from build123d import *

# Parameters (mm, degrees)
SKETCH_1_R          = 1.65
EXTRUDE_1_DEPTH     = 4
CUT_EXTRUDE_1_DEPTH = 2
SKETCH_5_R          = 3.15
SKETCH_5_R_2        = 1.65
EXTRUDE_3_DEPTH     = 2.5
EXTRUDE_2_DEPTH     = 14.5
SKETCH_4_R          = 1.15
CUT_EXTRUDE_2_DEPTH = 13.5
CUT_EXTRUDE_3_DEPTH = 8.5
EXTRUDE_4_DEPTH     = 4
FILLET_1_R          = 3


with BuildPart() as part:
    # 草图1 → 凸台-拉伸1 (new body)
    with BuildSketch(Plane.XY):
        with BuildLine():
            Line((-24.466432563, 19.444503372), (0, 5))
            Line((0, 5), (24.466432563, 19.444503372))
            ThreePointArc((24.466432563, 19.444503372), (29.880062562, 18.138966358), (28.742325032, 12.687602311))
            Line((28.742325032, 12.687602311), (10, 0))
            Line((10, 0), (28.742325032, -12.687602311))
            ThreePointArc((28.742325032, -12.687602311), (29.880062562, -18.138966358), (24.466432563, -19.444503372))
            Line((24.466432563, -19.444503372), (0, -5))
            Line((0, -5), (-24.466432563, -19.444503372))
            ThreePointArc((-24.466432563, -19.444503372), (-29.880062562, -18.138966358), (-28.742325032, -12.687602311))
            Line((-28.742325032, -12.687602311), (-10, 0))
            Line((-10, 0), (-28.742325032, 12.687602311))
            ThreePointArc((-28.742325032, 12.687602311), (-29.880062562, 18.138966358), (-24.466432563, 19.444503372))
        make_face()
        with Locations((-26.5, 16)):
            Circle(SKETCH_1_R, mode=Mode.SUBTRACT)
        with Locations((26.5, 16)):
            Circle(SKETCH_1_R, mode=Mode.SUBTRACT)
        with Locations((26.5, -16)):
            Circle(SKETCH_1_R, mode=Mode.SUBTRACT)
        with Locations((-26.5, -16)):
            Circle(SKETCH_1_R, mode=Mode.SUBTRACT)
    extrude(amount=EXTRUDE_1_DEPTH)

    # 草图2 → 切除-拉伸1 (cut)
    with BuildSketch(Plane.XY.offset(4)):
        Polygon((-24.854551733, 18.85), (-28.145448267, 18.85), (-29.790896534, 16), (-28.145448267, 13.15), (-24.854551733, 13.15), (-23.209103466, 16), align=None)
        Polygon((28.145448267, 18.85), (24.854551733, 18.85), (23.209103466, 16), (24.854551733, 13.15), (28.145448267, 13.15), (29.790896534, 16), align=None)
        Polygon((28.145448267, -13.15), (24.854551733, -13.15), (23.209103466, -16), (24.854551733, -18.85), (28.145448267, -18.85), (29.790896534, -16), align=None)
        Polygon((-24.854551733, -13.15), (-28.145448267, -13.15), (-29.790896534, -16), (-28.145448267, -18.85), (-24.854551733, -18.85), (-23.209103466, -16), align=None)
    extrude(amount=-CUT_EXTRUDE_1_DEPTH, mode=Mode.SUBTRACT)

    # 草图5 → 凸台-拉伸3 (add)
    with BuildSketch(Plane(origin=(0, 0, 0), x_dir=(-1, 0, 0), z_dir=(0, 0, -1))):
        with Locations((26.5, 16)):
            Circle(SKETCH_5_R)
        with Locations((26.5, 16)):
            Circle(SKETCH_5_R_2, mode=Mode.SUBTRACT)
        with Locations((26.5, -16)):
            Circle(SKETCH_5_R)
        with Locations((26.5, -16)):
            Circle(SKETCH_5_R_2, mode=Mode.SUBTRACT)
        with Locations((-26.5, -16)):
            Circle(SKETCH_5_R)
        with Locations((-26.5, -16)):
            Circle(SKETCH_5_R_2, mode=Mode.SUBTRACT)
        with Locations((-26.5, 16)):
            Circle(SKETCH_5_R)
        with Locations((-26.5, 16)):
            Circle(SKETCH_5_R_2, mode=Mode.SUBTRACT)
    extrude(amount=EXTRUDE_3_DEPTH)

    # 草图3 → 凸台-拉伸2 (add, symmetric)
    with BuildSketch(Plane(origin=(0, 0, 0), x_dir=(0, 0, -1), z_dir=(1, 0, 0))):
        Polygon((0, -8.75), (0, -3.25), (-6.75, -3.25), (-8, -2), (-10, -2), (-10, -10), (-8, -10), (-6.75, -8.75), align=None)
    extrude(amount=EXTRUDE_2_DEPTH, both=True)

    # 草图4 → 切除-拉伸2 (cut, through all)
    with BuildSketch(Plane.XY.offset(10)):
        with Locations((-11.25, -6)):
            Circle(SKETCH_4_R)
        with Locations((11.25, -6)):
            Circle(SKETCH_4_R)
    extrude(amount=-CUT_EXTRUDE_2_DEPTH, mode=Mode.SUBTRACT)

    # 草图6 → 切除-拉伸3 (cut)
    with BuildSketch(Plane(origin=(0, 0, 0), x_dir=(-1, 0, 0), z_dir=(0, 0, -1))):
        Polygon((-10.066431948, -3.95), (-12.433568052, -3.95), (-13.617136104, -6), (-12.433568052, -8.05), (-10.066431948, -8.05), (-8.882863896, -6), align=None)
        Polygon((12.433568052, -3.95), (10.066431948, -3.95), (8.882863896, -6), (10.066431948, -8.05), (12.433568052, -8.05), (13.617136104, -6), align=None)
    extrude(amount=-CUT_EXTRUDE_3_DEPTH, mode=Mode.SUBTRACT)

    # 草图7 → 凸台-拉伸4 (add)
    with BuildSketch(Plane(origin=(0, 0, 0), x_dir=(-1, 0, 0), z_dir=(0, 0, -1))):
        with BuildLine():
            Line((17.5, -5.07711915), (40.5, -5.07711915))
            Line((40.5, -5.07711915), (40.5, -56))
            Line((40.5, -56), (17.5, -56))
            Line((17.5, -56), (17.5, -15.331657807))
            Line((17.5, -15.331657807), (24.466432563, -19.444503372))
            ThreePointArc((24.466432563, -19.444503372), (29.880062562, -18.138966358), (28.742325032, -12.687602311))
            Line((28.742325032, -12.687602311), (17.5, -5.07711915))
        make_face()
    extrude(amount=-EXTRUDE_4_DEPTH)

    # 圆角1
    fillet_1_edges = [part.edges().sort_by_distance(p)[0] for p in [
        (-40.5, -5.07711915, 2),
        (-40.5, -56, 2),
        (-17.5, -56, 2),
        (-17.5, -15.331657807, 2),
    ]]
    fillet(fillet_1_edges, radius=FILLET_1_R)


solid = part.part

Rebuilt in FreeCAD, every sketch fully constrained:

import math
import FreeCAD as App
import Part
import Sketcher
Q = App.Units.Quantity


def edges_at(feature, points):
    """Names of the edges that pass closest to the given points."""
    edges = feature.Shape.Edges
    near = lambda p: min(range(len(edges)), key=lambda i: edges[i].distToShape(Part.Vertex(*p))[0])
    return sorted({f"Edge{near(p) + 1}" for p in points})

doc = App.newDocument("Part")
params = doc.addObject("Spreadsheet::Sheet", "Params")
for row, (alias, value) in enumerate([
    ("sketch1_radius", "4 mm"),
    ("sketch1_diameter", "3.3 mm"),
    ("pad1_length", "4 mm"),
    ("pocket1_length", "2 mm"),
    ("sketch3_diameter", "6.3 mm"),
    ("sketch3_diameter2", "3.3 mm"),
    ("pad2_length", "2.5 mm"),
    ("sketch4_width", "8 mm"),
    ("sketch4_height", "2 mm"),
    ("sketch4_width2", "5.5 mm"),
    ("pad3_length", "29 mm"),
    ("sketch5_diameter", "2.3 mm"),
    ("pocket3_length", "8.5 mm"),
    ("sketch7_radius", "4 mm"),
    ("sketch7_width", "23 mm"),
    ("pad4_length", "4 mm"),
    ("fillet_radius", "3 mm"),
], start=1):
    params.set(f"A{row}", alias)
    params.set(f"B{row}", "=" + value)
    params.setAlias(f"B{row}", alias)

body = doc.addObject("PartDesign::Body", "Body")

sketch1 = body.newObject("Sketcher::SketchObject", "Sketch")
sketch1.AttachmentSupport = (doc.getObject("XY_Plane"), [""])
sketch1.MapMode = "FlatFace"
sketch1.addGeometry([
    Part.LineSegment(App.Vector(0, 5, 0), App.Vector(-24.466433, 19.444503, 0)),
    Part.ArcOfCircle(Part.Circle(App.Vector(-26.5, 16, 0), App.Vector(0, 0, 1), 4), math.radians(59.443228), math.radians(235.903995)),
    Part.LineSegment(App.Vector(-28.742325, 12.687602, 0), App.Vector(-10, 0, 0)),
    Part.LineSegment(App.Vector(-10, 0, 0), App.Vector(-28.742325, -12.687602, 0)),
    Part.ArcOfCircle(Part.Circle(App.Vector(-26.5, -16, 0), App.Vector(0, 0, 1), 4), math.radians(124.096005), math.radians(300.556772)),
    Part.LineSegment(App.Vector(-24.466433, -19.444503, 0), App.Vector(0, -5, 0)),
    Part.LineSegment(App.Vector(0, -5, 0), App.Vector(24.466433, -19.444503, 0)),
    Part.ArcOfCircle(Part.Circle(App.Vector(26.5, -16, 0), App.Vector(0, 0, 1), 4), math.radians(-120.556772), math.radians(55.903995)),
    Part.LineSegment(App.Vector(28.742325, -12.687602, 0), App.Vector(10, 0, 0)),
    Part.LineSegment(App.Vector(10, 0, 0), App.Vector(28.742325, 12.687602, 0)),
    Part.ArcOfCircle(Part.Circle(App.Vector(26.5, 16, 0), App.Vector(0, 0, 1), 4), math.radians(-55.903995), math.radians(120.556772)),
    Part.LineSegment(App.Vector(24.466433, 19.444503, 0), App.Vector(0, 5, 0)),
    Part.Circle(App.Vector(26.5, -16, 0), App.Vector(0, 0, 1), 1.65),
    Part.Circle(App.Vector(-26.5, -16, 0), App.Vector(0, 0, 1), 1.65),
    Part.Circle(App.Vector(26.5, 16, 0), App.Vector(0, 0, 1), 1.65),
    Part.Circle(App.Vector(-26.5, 16, 0), App.Vector(0, 0, 1), 1.65),
], False)
sketch1.addConstraint([
    Sketcher.Constraint("Tangent", 0, 2, 1, 1),
    Sketcher.Constraint("Tangent", 1, 2, 2, 1),
    Sketcher.Constraint("Coincident", 2, 2, 3, 1),
    Sketcher.Constraint("Tangent", 3, 2, 4, 1),
    Sketcher.Constraint("Tangent", 4, 2, 5, 1),
    Sketcher.Constraint("Coincident", 5, 2, 6, 1),
    Sketcher.Constraint("Tangent", 6, 2, 7, 1),
    Sketcher.Constraint("Tangent", 7, 2, 8, 1),
    Sketcher.Constraint("Coincident", 8, 2, 9, 1),
    Sketcher.Constraint("Tangent", 9, 2, 10, 1),
    Sketcher.Constraint("Tangent", 10, 2, 11, 1),
    Sketcher.Constraint("Coincident", 11, 2, 0, 1),
    Sketcher.Constraint("Coincident", 12, 3, 7, 3),
    Sketcher.Constraint("Coincident", 13, 3, 4, 3),
    Sketcher.Constraint("Coincident", 14, 3, 10, 3),
    Sketcher.Constraint("Coincident", 15, 3, 1, 3),
    Sketcher.Constraint("Equal", 1, 4),
    Sketcher.Constraint("Equal", 4, 7),
    Sketcher.Constraint("Equal", 7, 10),
    Sketcher.Constraint("Equal", 12, 13),
    Sketcher.Constraint("Equal", 13, 14),
    Sketcher.Constraint("Equal", 14, 15),
    Sketcher.Constraint("Symmetric", 1, 3, 7, 3, -1, 1),
    Sketcher.Constraint("Symmetric", 4, 3, 10, 3, -1, 1),
    Sketcher.Constraint("Symmetric", 2, 2, 8, 2, -1, 1),
    Sketcher.Constraint("Symmetric", 5, 2, 11, 2, -1, 1),
    Sketcher.Constraint("Symmetric", 4, 3, 7, 3, -2),
    Sketcher.Constraint("PointOnObject", 2, 2, -1),
    Sketcher.Constraint("PointOnObject", 5, 2, -2),
    Sketcher.Constraint("Radius", 1, 4.0),
    Sketcher.Constraint("Diameter", 12, 3.3),
    Sketcher.Constraint("DistanceY", -1, 1, 1, 3, 16.0),
    Sketcher.Constraint("DistanceX", 2, 2, -1, 1, 10.0),
    Sketcher.Constraint("DistanceY", 5, 2, -1, 1, 5.0),
    Sketcher.Constraint("DistanceX", 4, 3, 7, 3, 53.0),
])
sketch1.setExpression("Constraints[29]", "Params.sketch1_radius")
sketch1.setExpression("Constraints[30]", "Params.sketch1_diameter")
pad1 = body.newObject("PartDesign::Pad", "Pad")
pad1.Profile = sketch1
pad1.setExpression("Length", "Params.pad1_length")

sketch2 = body.newObject("Sketcher::SketchObject", "Sketch001")
sketch2.AttachmentSupport = (doc.getObject("XY_Plane"), [""])
sketch2.MapMode = "FlatFace"
sketch2.AttachmentOffset = App.Placement(App.Vector(0, 0, 4), App.Rotation())
sketch2.addGeometry([
    Part.LineSegment(App.Vector(-24.854552, 18.85, 0), App.Vector(-28.145448, 18.85, 0)),
    Part.LineSegment(App.Vector(-28.145448, 18.85, 0), App.Vector(-29.790897, 16, 0)),
    Part.LineSegment(App.Vector(-29.790897, 16, 0), App.Vector(-28.145448, 13.15, 0)),
    Part.LineSegment(App.Vector(-28.145448, 13.15, 0), App.Vector(-24.854552, 13.15, 0)),
    Part.LineSegment(App.Vector(-24.854552, 13.15, 0), App.Vector(-23.209103, 16, 0)),
    Part.LineSegment(App.Vector(-23.209103, 16, 0), App.Vector(-24.854552, 18.85, 0)),
    Part.LineSegment(App.Vector(28.145448, 18.85, 0), App.Vector(24.854552, 18.85, 0)),
    Part.LineSegment(App.Vector(24.854552, 18.85, 0), App.Vector(23.209103, 16, 0)),
    Part.LineSegment(App.Vector(23.209103, 16, 0), App.Vector(24.854552, 13.15, 0)),
    Part.LineSegment(App.Vector(24.854552, 13.15, 0), App.Vector(28.145448, 13.15, 0)),
    Part.LineSegment(App.Vector(28.145448, 13.15, 0), App.Vector(29.790897, 16, 0)),
    Part.LineSegment(App.Vector(29.790897, 16, 0), App.Vector(28.145448, 18.85, 0)),
    Part.LineSegment(App.Vector(28.145448, -13.15, 0), App.Vector(24.854552, -13.15, 0)),
    Part.LineSegment(App.Vector(24.854552, -13.15, 0), App.Vector(23.209103, -16, 0)),
    Part.LineSegment(App.Vector(23.209103, -16, 0), App.Vector(24.854552, -18.85, 0)),
    Part.LineSegment(App.Vector(24.854552, -18.85, 0), App.Vector(28.145448, -18.85, 0)),
    Part.LineSegment(App.Vector(28.145448, -18.85, 0), App.Vector(29.790897, -16, 0)),
    Part.LineSegment(App.Vector(29.790897, -16, 0), App.Vector(28.145448, -13.15, 0)),
    Part.LineSegment(App.Vector(-24.854552, -13.15, 0), App.Vector(-28.145448, -13.15, 0)),
    Part.LineSegment(App.Vector(-28.145448, -13.15, 0), App.Vector(-29.790897, -16, 0)),
    Part.LineSegment(App.Vector(-29.790897, -16, 0), App.Vector(-28.145448, -18.85, 0)),
    Part.LineSegment(App.Vector(-28.145448, -18.85, 0), App.Vector(-24.854552, -18.85, 0)),
    Part.LineSegment(App.Vector(-24.854552, -18.85, 0), App.Vector(-23.209103, -16, 0)),
    Part.LineSegment(App.Vector(-23.209103, -16, 0), App.Vector(-24.854552, -13.15, 0)),
], False)
sketch2.addConstraint([
    Sketcher.Constraint("Coincident", 0, 2, 1, 1),
    Sketcher.Constraint("Coincident", 1, 2, 2, 1),
    Sketcher.Constraint("Coincident", 2, 2, 3, 1),
    Sketcher.Constraint("Coincident", 3, 2, 4, 1),
    Sketcher.Constraint("Coincident", 4, 2, 5, 1),
    Sketcher.Constraint("Coincident", 5, 2, 0, 1),
    Sketcher.Constraint("Coincident", 6, 2, 7, 1),
    Sketcher.Constraint("Coincident", 7, 2, 8, 1),
    Sketcher.Constraint("Coincident", 8, 2, 9, 1),
    Sketcher.Constraint("Coincident", 9, 2, 10, 1),
    Sketcher.Constraint("Coincident", 10, 2, 11, 1),
    Sketcher.Constraint("Coincident", 11, 2, 6, 1),
    Sketcher.Constraint("Coincident", 12, 2, 13, 1),
    Sketcher.Constraint("Coincident", 13, 2, 14, 1),
    Sketcher.Constraint("Coincident", 14, 2, 15, 1),
    Sketcher.Constraint("Coincident", 15, 2, 16, 1),
    Sketcher.Constraint("Coincident", 16, 2, 17, 1),
    Sketcher.Constraint("Coincident", 17, 2, 12, 1),
    Sketcher.Constraint("Coincident", 18, 2, 19, 1),
    Sketcher.Constraint("Coincident", 19, 2, 20, 1),
    Sketcher.Constraint("Coincident", 20, 2, 21, 1),
    Sketcher.Constraint("Coincident", 21, 2, 22, 1),
    Sketcher.Constraint("Coincident", 22, 2, 23, 1),
    Sketcher.Constraint("Coincident", 23, 2, 18, 1),
    Sketcher.Constraint("Horizontal", 0),
    Sketcher.Constraint("Horizontal", 3),
    Sketcher.Constraint("Horizontal", 6),
    Sketcher.Constraint("Horizontal", 9),
    Sketcher.Constraint("Horizontal", 12),
    Sketcher.Constraint("Horizontal", 15),
    Sketcher.Constraint("Horizontal", 18),
    Sketcher.Constraint("Horizontal", 21),
    Sketcher.Constraint("Symmetric", 3, 2, 12, 2, -1, 1),
    Sketcher.Constraint("Symmetric", 4, 2, 13, 2, -1, 1),
    Sketcher.Constraint("Symmetric", 5, 2, 14, 2, -1, 1),
    Sketcher.Constraint("Symmetric", 1, 2, 16, 2, -1, 1),
    Sketcher.Constraint("Symmetric", 9, 2, 18, 2, -1, 1),
    Sketcher.Constraint("Symmetric", 10, 2, 19, 2, -1, 1),
    Sketcher.Constraint("Symmetric", 11, 2, 20, 2, -1, 1),
    Sketcher.Constraint("Symmetric", 7, 2, 22, 2, -1, 1),
    Sketcher.Constraint("Symmetric", 5, 2, 6, 2, -2),
    Sketcher.Constraint("Symmetric", 4, 2, 7, 2, -2),
    Sketcher.Constraint("Symmetric", 3, 2, 8, 2, -2),
    Sketcher.Constraint("Symmetric", 1, 2, 10, 2, -2),
    Sketcher.Constraint("Parallel", 1, 4),
    Sketcher.Constraint("Parallel", 2, 5),
    Sketcher.Constraint("Parallel", 4, 7),
    Sketcher.Constraint("Parallel", 7, 10),
    Sketcher.Constraint("Parallel", 8, 11),
    Sketcher.Constraint("Parallel", 13, 16),
    Sketcher.Constraint("Parallel", 14, 17),
    Sketcher.Constraint("Parallel", 19, 22),
    Sketcher.Constraint("Parallel", 20, 23),
    Sketcher.Constraint("Horizontal", 1, 2, 4, 2),
    Sketcher.Constraint("Vertical", 0, 2, 2, 2),
    Sketcher.Constraint("Angle", 1, Q("-120 deg")),
    Sketcher.Constraint("DistanceY", -1, 1, 1, 2, 16.0),
    Sketcher.Constraint("DistanceX", 0, 2, 6, 2, 53.0),
    Sketcher.Constraint("DistanceY", 2, 2, 0, 2, 5.7),
    Sketcher.Constraint("DistanceX", 0, 2, 0, 1, 3.290897),
])
pocket1 = body.newObject("PartDesign::Pocket", "Pocket")
pocket1.Profile = sketch2
pocket1.setExpression("Length", "Params.pocket1_length")

sketch3 = body.newObject("Sketcher::SketchObject", "Sketch002")
sketch3.AttachmentSupport = (doc.getObject("XY_Plane"), [""])
sketch3.MapMode = "FlatFace"
sketch3.addGeometry([
    Part.Circle(App.Vector(-26.5, 16, 0), App.Vector(0, 0, 1), 3.15),
    Part.Circle(App.Vector(-26.5, 16, 0), App.Vector(0, 0, 1), 1.65),
    Part.Circle(App.Vector(-26.5, -16, 0), App.Vector(0, 0, 1), 3.15),
    Part.Circle(App.Vector(-26.5, -16, 0), App.Vector(0, 0, 1), 1.65),
    Part.Circle(App.Vector(26.5, -16, 0), App.Vector(0, 0, 1), 3.15),
    Part.Circle(App.Vector(26.5, -16, 0), App.Vector(0, 0, 1), 1.65),
    Part.Circle(App.Vector(26.5, 16, 0), App.Vector(0, 0, 1), 3.15),
    Part.Circle(App.Vector(26.5, 16, 0), App.Vector(0, 0, 1), 1.65),
], False)
sketch3.addConstraint([
    Sketcher.Constraint("Coincident", 1, 3, 0, 3),
    Sketcher.Constraint("Coincident", 3, 3, 2, 3),
    Sketcher.Constraint("Coincident", 5, 3, 4, 3),
    Sketcher.Constraint("Coincident", 7, 3, 6, 3),
    Sketcher.Constraint("Equal", 0, 2),
    Sketcher.Constraint("Equal", 1, 3),
    Sketcher.Constraint("Equal", 2, 4),
    Sketcher.Constraint("Equal", 3, 5),
    Sketcher.Constraint("Equal", 4, 6),
    Sketcher.Constraint("Equal", 5, 7),
    Sketcher.Constraint("Symmetric", 0, 3, 4, 3, -1, 1),
    Sketcher.Constraint("Symmetric", 2, 3, 6, 3, -1, 1),
    Sketcher.Constraint("Symmetric", 2, 3, 4, 3, -2),
    Sketcher.Constraint("Diameter", 0, 6.3),
    Sketcher.Constraint("Diameter", 1, 3.3),
    Sketcher.Constraint("DistanceY", -1, 1, 0, 3, 16.0),
    Sketcher.Constraint("DistanceX", 2, 3, 4, 3, 53.0),
])
sketch3.setExpression("Constraints[13]", "Params.sketch3_diameter")
sketch3.setExpression("Constraints[14]", "Params.sketch3_diameter2")
pad2 = body.newObject("PartDesign::Pad", "Pad001")
pad2.Profile = sketch3
pad2.setExpression("Length", "Params.pad2_length")
pad2.Reversed = True

sketch4 = body.newObject("Sketcher::SketchObject", "Sketch003")
sketch4.AttachmentSupport = (doc.getObject("YZ_Plane"), [""])
sketch4.MapMode = "FlatFace"
sketch4.addGeometry([
    Part.LineSegment(App.Vector(-8.75, 0, 0), App.Vector(-3.25, 0, 0)),
    Part.LineSegment(App.Vector(-3.25, 0, 0), App.Vector(-3.25, 6.75, 0)),
    Part.LineSegment(App.Vector(-3.25, 6.75, 0), App.Vector(-2, 8, 0)),
    Part.LineSegment(App.Vector(-2, 8, 0), App.Vector(-2, 10, 0)),
    Part.LineSegment(App.Vector(-2, 10, 0), App.Vector(-10, 10, 0)),
    Part.LineSegment(App.Vector(-10, 10, 0), App.Vector(-10, 8, 0)),
    Part.LineSegment(App.Vector(-10, 8, 0), App.Vector(-8.75, 6.75, 0)),
    Part.LineSegment(App.Vector(-8.75, 6.75, 0), App.Vector(-8.75, 0, 0)),
], False)
sketch4.addConstraint([
    Sketcher.Constraint("Coincident", 0, 2, 1, 1),
    Sketcher.Constraint("Coincident", 1, 2, 2, 1),
    Sketcher.Constraint("Coincident", 2, 2, 3, 1),
    Sketcher.Constraint("Coincident", 3, 2, 4, 1),
    Sketcher.Constraint("Coincident", 4, 2, 5, 1),
    Sketcher.Constraint("Coincident", 5, 2, 6, 1),
    Sketcher.Constraint("Coincident", 6, 2, 7, 1),
    Sketcher.Constraint("Coincident", 7, 2, 0, 1),
    Sketcher.Constraint("Horizontal", 0),
    Sketcher.Constraint("Vertical", 1),
    Sketcher.Constraint("Vertical", 3),
    Sketcher.Constraint("Horizontal", 4),
    Sketcher.Constraint("Vertical", 5),
    Sketcher.Constraint("Vertical", 7),
    Sketcher.Constraint("PointOnObject", 0, 2, -1),
    Sketcher.Constraint("Perpendicular", 2, 6),
    Sketcher.Constraint("Horizontal", 2, 2, 5, 2),
    Sketcher.Constraint("Horizontal", 1, 2, 6, 2),
    Sketcher.Constraint("Equal", 2, 6),
    Sketcher.Constraint("DistanceX", 4, 2, 4, 1, 8.0),
    Sketcher.Constraint("DistanceY", 3, 1, 3, 2, 2.0),
    Sketcher.Constraint("DistanceX", 0, 1, 0, 2, 5.5),
    Sketcher.Constraint("DistanceX", 2, 2, -1, 1, 2.0),
    Sketcher.Constraint("DistanceY", -1, 1, 2, 2, 8.0),
])
sketch4.setExpression("Constraints[19]", "Params.sketch4_width")
sketch4.setExpression("Constraints[20]", "Params.sketch4_height")
sketch4.setExpression("Constraints[21]", "Params.sketch4_width2")
pad3 = body.newObject("PartDesign::Pad", "Pad002")
pad3.Profile = sketch4
pad3.setExpression("Length", "Params.pad3_length")
pad3.Midplane = True

sketch5 = body.newObject("Sketcher::SketchObject", "Sketch004")
sketch5.AttachmentSupport = (doc.getObject("XY_Plane"), [""])
sketch5.MapMode = "FlatFace"
sketch5.AttachmentOffset = App.Placement(App.Vector(0, 0, 10), App.Rotation())
sketch5.addGeometry([
    Part.Circle(App.Vector(-11.25, -6, 0), App.Vector(0, 0, 1), 1.15),
    Part.Circle(App.Vector(11.25, -6, 0), App.Vector(0, 0, 1), 1.15),
], False)
sketch5.addConstraint([
    Sketcher.Constraint("Equal", 0, 1),
    Sketcher.Constraint("Symmetric", 0, 3, 1, 3, -2),
    Sketcher.Constraint("Diameter", 0, 2.3),
    Sketcher.Constraint("DistanceY", 0, 3, -1, 1, 6.0),
    Sketcher.Constraint("DistanceX", 0, 3, 1, 3, 22.5),
])
sketch5.setExpression("Constraints[2]", "Params.sketch5_diameter")
pocket2 = body.newObject("PartDesign::Pocket", "Pocket001")
pocket2.Profile = sketch5
pocket2.Type = "ThroughAll"

sketch6 = body.newObject("Sketcher::SketchObject", "Sketch005")
sketch6.AttachmentSupport = (doc.getObject("XY_Plane"), [""])
sketch6.MapMode = "FlatFace"
sketch6.addGeometry([
    Part.LineSegment(App.Vector(10.066432, -3.95, 0), App.Vector(12.433568, -3.95, 0)),
    Part.LineSegment(App.Vector(12.433568, -3.95, 0), App.Vector(13.617136, -6, 0)),
    Part.LineSegment(App.Vector(13.617136, -6, 0), App.Vector(12.433568, -8.05, 0)),
    Part.LineSegment(App.Vector(12.433568, -8.05, 0), App.Vector(10.066432, -8.05, 0)),
    Part.LineSegment(App.Vector(10.066432, -8.05, 0), App.Vector(8.882864, -6, 0)),
    Part.LineSegment(App.Vector(8.882864, -6, 0), App.Vector(10.066432, -3.95, 0)),
    Part.LineSegment(App.Vector(-12.433568, -3.95, 0), App.Vector(-10.066432, -3.95, 0)),
    Part.LineSegment(App.Vector(-10.066432, -3.95, 0), App.Vector(-8.882864, -6, 0)),
    Part.LineSegment(App.Vector(-8.882864, -6, 0), App.Vector(-10.066432, -8.05, 0)),
    Part.LineSegment(App.Vector(-10.066432, -8.05, 0), App.Vector(-12.433568, -8.05, 0)),
    Part.LineSegment(App.Vector(-12.433568, -8.05, 0), App.Vector(-13.617136, -6, 0)),
    Part.LineSegment(App.Vector(-13.617136, -6, 0), App.Vector(-12.433568, -3.95, 0)),
], False)
sketch6.addConstraint([
    Sketcher.Constraint("Coincident", 0, 2, 1, 1),
    Sketcher.Constraint("Coincident", 1, 2, 2, 1),
    Sketcher.Constraint("Coincident", 2, 2, 3, 1),
    Sketcher.Constraint("Coincident", 3, 2, 4, 1),
    Sketcher.Constraint("Coincident", 4, 2, 5, 1),
    Sketcher.Constraint("Coincident", 5, 2, 0, 1),
    Sketcher.Constraint("Coincident", 6, 2, 7, 1),
    Sketcher.Constraint("Coincident", 7, 2, 8, 1),
    Sketcher.Constraint("Coincident", 8, 2, 9, 1),
    Sketcher.Constraint("Coincident", 9, 2, 10, 1),
    Sketcher.Constraint("Coincident", 10, 2, 11, 1),
    Sketcher.Constraint("Coincident", 11, 2, 6, 1),
    Sketcher.Constraint("Horizontal", 0),
    Sketcher.Constraint("Horizontal", 3),
    Sketcher.Constraint("Horizontal", 6),
    Sketcher.Constraint("Horizontal", 9),
    Sketcher.Constraint("Symmetric", 5, 2, 6, 2, -2),
    Sketcher.Constraint("Symmetric", 4, 2, 7, 2, -2),
    Sketcher.Constraint("Symmetric", 3, 2, 8, 2, -2),
    Sketcher.Constraint("Symmetric", 1, 2, 10, 2, -2),
    Sketcher.Constraint("Parallel", 1, 4),
    Sketcher.Constraint("Parallel", 2, 5),
    Sketcher.Constraint("Parallel", 4, 7),
    Sketcher.Constraint("Parallel", 7, 10),
    Sketcher.Constraint("Parallel", 8, 11),
    Sketcher.Constraint("Horizontal", 1, 2, 4, 2),
    Sketcher.Constraint("Vertical", 0, 2, 2, 2),
    Sketcher.Constraint("Angle", 1, Q("-60 deg")),
    Sketcher.Constraint("DistanceY", 1, 2, -1, 1, 6.0),
    Sketcher.Constraint("DistanceY", 2, 2, 0, 2, 4.1),
    Sketcher.Constraint("DistanceX", 6, 2, 0, 2, 22.5),
    Sketcher.Constraint("DistanceX", 0, 1, 0, 2, 2.367136),
])
pocket3 = body.newObject("PartDesign::Pocket", "Pocket002")
pocket3.Profile = sketch6
pocket3.setExpression("Length", "Params.pocket3_length")
pocket3.Reversed = True

sketch7 = body.newObject("Sketcher::SketchObject", "Sketch006")
sketch7.AttachmentSupport = (doc.getObject("XY_Plane"), [""])
sketch7.MapMode = "FlatFace"
sketch7.addGeometry([
    Part.LineSegment(App.Vector(-40.5, -5.077119, 0), App.Vector(-17.5, -5.077119, 0)),
    Part.LineSegment(App.Vector(-17.5, -5.077119, 0), App.Vector(-28.742325, -12.687602, 0)),
    Part.ArcOfCircle(Part.Circle(App.Vector(-26.5, -16, 0), App.Vector(0, 0, 1), 4), math.radians(124.096005), math.radians(300.556772)),
    Part.LineSegment(App.Vector(-24.466433, -19.444503, 0), App.Vector(-17.5, -15.331658, 0)),
    Part.LineSegment(App.Vector(-17.5, -15.331658, 0), App.Vector(-17.5, -56, 0)),
    Part.LineSegment(App.Vector(-17.5, -56, 0), App.Vector(-40.5, -56, 0)),
    Part.LineSegment(App.Vector(-40.5, -56, 0), App.Vector(-40.5, -5.077119, 0)),
], False)
sketch7.addConstraint([
    Sketcher.Constraint("Coincident", 0, 2, 1, 1),
    Sketcher.Constraint("Tangent", 1, 2, 2, 1),
    Sketcher.Constraint("Tangent", 2, 2, 3, 1),
    Sketcher.Constraint("Coincident", 3, 2, 4, 1),
    Sketcher.Constraint("Coincident", 4, 2, 5, 1),
    Sketcher.Constraint("Coincident", 5, 2, 6, 1),
    Sketcher.Constraint("Coincident", 6, 2, 0, 1),
    Sketcher.Constraint("Horizontal", 0),
    Sketcher.Constraint("Vertical", 4),
    Sketcher.Constraint("Horizontal", 5),
    Sketcher.Constraint("Vertical", 6),
    Sketcher.Constraint("Vertical", 0, 2, 3, 2),
    Sketcher.Constraint("Radius", 2, 4.0),
    Sketcher.Constraint("DistanceX", 0, 1, 0, 2, 23.0),
    Sketcher.Constraint("DistanceY", 2, 3, -1, 1, 16.0),
    Sketcher.Constraint("DistanceY", 4, 2, -1, 1, 56.0),
    Sketcher.Constraint("DistanceX", 2, 3, 0, 2, 9.0),
    Sketcher.Constraint("DistanceX", 2, 3, -1, 1, 26.5),
    Sketcher.Constraint("DistanceY", 6, 1, 6, 2, 50.922881),
    Sketcher.Constraint("DistanceY", 2, 2, 1, 2, 6.756901),
])
sketch7.setExpression("Constraints[12]", "Params.sketch7_radius")
sketch7.setExpression("Constraints[13]", "Params.sketch7_width")
pad4 = body.newObject("PartDesign::Pad", "Pad003")
pad4.Profile = sketch7
pad4.setExpression("Length", "Params.pad4_length")
doc.recompute()

fillet = body.newObject("PartDesign::Fillet", "Fillet")
fillet.Base = (pad4, edges_at(pad4, [
    (-40.5, -5.077, 2),
    (-40.5, -56, 2),
    (-17.5, -56, 2),
    (-17.5, -15.332, 2),
]))
fillet.setExpression("Radius", "Params.fillet_radius")

doc.recompute()
